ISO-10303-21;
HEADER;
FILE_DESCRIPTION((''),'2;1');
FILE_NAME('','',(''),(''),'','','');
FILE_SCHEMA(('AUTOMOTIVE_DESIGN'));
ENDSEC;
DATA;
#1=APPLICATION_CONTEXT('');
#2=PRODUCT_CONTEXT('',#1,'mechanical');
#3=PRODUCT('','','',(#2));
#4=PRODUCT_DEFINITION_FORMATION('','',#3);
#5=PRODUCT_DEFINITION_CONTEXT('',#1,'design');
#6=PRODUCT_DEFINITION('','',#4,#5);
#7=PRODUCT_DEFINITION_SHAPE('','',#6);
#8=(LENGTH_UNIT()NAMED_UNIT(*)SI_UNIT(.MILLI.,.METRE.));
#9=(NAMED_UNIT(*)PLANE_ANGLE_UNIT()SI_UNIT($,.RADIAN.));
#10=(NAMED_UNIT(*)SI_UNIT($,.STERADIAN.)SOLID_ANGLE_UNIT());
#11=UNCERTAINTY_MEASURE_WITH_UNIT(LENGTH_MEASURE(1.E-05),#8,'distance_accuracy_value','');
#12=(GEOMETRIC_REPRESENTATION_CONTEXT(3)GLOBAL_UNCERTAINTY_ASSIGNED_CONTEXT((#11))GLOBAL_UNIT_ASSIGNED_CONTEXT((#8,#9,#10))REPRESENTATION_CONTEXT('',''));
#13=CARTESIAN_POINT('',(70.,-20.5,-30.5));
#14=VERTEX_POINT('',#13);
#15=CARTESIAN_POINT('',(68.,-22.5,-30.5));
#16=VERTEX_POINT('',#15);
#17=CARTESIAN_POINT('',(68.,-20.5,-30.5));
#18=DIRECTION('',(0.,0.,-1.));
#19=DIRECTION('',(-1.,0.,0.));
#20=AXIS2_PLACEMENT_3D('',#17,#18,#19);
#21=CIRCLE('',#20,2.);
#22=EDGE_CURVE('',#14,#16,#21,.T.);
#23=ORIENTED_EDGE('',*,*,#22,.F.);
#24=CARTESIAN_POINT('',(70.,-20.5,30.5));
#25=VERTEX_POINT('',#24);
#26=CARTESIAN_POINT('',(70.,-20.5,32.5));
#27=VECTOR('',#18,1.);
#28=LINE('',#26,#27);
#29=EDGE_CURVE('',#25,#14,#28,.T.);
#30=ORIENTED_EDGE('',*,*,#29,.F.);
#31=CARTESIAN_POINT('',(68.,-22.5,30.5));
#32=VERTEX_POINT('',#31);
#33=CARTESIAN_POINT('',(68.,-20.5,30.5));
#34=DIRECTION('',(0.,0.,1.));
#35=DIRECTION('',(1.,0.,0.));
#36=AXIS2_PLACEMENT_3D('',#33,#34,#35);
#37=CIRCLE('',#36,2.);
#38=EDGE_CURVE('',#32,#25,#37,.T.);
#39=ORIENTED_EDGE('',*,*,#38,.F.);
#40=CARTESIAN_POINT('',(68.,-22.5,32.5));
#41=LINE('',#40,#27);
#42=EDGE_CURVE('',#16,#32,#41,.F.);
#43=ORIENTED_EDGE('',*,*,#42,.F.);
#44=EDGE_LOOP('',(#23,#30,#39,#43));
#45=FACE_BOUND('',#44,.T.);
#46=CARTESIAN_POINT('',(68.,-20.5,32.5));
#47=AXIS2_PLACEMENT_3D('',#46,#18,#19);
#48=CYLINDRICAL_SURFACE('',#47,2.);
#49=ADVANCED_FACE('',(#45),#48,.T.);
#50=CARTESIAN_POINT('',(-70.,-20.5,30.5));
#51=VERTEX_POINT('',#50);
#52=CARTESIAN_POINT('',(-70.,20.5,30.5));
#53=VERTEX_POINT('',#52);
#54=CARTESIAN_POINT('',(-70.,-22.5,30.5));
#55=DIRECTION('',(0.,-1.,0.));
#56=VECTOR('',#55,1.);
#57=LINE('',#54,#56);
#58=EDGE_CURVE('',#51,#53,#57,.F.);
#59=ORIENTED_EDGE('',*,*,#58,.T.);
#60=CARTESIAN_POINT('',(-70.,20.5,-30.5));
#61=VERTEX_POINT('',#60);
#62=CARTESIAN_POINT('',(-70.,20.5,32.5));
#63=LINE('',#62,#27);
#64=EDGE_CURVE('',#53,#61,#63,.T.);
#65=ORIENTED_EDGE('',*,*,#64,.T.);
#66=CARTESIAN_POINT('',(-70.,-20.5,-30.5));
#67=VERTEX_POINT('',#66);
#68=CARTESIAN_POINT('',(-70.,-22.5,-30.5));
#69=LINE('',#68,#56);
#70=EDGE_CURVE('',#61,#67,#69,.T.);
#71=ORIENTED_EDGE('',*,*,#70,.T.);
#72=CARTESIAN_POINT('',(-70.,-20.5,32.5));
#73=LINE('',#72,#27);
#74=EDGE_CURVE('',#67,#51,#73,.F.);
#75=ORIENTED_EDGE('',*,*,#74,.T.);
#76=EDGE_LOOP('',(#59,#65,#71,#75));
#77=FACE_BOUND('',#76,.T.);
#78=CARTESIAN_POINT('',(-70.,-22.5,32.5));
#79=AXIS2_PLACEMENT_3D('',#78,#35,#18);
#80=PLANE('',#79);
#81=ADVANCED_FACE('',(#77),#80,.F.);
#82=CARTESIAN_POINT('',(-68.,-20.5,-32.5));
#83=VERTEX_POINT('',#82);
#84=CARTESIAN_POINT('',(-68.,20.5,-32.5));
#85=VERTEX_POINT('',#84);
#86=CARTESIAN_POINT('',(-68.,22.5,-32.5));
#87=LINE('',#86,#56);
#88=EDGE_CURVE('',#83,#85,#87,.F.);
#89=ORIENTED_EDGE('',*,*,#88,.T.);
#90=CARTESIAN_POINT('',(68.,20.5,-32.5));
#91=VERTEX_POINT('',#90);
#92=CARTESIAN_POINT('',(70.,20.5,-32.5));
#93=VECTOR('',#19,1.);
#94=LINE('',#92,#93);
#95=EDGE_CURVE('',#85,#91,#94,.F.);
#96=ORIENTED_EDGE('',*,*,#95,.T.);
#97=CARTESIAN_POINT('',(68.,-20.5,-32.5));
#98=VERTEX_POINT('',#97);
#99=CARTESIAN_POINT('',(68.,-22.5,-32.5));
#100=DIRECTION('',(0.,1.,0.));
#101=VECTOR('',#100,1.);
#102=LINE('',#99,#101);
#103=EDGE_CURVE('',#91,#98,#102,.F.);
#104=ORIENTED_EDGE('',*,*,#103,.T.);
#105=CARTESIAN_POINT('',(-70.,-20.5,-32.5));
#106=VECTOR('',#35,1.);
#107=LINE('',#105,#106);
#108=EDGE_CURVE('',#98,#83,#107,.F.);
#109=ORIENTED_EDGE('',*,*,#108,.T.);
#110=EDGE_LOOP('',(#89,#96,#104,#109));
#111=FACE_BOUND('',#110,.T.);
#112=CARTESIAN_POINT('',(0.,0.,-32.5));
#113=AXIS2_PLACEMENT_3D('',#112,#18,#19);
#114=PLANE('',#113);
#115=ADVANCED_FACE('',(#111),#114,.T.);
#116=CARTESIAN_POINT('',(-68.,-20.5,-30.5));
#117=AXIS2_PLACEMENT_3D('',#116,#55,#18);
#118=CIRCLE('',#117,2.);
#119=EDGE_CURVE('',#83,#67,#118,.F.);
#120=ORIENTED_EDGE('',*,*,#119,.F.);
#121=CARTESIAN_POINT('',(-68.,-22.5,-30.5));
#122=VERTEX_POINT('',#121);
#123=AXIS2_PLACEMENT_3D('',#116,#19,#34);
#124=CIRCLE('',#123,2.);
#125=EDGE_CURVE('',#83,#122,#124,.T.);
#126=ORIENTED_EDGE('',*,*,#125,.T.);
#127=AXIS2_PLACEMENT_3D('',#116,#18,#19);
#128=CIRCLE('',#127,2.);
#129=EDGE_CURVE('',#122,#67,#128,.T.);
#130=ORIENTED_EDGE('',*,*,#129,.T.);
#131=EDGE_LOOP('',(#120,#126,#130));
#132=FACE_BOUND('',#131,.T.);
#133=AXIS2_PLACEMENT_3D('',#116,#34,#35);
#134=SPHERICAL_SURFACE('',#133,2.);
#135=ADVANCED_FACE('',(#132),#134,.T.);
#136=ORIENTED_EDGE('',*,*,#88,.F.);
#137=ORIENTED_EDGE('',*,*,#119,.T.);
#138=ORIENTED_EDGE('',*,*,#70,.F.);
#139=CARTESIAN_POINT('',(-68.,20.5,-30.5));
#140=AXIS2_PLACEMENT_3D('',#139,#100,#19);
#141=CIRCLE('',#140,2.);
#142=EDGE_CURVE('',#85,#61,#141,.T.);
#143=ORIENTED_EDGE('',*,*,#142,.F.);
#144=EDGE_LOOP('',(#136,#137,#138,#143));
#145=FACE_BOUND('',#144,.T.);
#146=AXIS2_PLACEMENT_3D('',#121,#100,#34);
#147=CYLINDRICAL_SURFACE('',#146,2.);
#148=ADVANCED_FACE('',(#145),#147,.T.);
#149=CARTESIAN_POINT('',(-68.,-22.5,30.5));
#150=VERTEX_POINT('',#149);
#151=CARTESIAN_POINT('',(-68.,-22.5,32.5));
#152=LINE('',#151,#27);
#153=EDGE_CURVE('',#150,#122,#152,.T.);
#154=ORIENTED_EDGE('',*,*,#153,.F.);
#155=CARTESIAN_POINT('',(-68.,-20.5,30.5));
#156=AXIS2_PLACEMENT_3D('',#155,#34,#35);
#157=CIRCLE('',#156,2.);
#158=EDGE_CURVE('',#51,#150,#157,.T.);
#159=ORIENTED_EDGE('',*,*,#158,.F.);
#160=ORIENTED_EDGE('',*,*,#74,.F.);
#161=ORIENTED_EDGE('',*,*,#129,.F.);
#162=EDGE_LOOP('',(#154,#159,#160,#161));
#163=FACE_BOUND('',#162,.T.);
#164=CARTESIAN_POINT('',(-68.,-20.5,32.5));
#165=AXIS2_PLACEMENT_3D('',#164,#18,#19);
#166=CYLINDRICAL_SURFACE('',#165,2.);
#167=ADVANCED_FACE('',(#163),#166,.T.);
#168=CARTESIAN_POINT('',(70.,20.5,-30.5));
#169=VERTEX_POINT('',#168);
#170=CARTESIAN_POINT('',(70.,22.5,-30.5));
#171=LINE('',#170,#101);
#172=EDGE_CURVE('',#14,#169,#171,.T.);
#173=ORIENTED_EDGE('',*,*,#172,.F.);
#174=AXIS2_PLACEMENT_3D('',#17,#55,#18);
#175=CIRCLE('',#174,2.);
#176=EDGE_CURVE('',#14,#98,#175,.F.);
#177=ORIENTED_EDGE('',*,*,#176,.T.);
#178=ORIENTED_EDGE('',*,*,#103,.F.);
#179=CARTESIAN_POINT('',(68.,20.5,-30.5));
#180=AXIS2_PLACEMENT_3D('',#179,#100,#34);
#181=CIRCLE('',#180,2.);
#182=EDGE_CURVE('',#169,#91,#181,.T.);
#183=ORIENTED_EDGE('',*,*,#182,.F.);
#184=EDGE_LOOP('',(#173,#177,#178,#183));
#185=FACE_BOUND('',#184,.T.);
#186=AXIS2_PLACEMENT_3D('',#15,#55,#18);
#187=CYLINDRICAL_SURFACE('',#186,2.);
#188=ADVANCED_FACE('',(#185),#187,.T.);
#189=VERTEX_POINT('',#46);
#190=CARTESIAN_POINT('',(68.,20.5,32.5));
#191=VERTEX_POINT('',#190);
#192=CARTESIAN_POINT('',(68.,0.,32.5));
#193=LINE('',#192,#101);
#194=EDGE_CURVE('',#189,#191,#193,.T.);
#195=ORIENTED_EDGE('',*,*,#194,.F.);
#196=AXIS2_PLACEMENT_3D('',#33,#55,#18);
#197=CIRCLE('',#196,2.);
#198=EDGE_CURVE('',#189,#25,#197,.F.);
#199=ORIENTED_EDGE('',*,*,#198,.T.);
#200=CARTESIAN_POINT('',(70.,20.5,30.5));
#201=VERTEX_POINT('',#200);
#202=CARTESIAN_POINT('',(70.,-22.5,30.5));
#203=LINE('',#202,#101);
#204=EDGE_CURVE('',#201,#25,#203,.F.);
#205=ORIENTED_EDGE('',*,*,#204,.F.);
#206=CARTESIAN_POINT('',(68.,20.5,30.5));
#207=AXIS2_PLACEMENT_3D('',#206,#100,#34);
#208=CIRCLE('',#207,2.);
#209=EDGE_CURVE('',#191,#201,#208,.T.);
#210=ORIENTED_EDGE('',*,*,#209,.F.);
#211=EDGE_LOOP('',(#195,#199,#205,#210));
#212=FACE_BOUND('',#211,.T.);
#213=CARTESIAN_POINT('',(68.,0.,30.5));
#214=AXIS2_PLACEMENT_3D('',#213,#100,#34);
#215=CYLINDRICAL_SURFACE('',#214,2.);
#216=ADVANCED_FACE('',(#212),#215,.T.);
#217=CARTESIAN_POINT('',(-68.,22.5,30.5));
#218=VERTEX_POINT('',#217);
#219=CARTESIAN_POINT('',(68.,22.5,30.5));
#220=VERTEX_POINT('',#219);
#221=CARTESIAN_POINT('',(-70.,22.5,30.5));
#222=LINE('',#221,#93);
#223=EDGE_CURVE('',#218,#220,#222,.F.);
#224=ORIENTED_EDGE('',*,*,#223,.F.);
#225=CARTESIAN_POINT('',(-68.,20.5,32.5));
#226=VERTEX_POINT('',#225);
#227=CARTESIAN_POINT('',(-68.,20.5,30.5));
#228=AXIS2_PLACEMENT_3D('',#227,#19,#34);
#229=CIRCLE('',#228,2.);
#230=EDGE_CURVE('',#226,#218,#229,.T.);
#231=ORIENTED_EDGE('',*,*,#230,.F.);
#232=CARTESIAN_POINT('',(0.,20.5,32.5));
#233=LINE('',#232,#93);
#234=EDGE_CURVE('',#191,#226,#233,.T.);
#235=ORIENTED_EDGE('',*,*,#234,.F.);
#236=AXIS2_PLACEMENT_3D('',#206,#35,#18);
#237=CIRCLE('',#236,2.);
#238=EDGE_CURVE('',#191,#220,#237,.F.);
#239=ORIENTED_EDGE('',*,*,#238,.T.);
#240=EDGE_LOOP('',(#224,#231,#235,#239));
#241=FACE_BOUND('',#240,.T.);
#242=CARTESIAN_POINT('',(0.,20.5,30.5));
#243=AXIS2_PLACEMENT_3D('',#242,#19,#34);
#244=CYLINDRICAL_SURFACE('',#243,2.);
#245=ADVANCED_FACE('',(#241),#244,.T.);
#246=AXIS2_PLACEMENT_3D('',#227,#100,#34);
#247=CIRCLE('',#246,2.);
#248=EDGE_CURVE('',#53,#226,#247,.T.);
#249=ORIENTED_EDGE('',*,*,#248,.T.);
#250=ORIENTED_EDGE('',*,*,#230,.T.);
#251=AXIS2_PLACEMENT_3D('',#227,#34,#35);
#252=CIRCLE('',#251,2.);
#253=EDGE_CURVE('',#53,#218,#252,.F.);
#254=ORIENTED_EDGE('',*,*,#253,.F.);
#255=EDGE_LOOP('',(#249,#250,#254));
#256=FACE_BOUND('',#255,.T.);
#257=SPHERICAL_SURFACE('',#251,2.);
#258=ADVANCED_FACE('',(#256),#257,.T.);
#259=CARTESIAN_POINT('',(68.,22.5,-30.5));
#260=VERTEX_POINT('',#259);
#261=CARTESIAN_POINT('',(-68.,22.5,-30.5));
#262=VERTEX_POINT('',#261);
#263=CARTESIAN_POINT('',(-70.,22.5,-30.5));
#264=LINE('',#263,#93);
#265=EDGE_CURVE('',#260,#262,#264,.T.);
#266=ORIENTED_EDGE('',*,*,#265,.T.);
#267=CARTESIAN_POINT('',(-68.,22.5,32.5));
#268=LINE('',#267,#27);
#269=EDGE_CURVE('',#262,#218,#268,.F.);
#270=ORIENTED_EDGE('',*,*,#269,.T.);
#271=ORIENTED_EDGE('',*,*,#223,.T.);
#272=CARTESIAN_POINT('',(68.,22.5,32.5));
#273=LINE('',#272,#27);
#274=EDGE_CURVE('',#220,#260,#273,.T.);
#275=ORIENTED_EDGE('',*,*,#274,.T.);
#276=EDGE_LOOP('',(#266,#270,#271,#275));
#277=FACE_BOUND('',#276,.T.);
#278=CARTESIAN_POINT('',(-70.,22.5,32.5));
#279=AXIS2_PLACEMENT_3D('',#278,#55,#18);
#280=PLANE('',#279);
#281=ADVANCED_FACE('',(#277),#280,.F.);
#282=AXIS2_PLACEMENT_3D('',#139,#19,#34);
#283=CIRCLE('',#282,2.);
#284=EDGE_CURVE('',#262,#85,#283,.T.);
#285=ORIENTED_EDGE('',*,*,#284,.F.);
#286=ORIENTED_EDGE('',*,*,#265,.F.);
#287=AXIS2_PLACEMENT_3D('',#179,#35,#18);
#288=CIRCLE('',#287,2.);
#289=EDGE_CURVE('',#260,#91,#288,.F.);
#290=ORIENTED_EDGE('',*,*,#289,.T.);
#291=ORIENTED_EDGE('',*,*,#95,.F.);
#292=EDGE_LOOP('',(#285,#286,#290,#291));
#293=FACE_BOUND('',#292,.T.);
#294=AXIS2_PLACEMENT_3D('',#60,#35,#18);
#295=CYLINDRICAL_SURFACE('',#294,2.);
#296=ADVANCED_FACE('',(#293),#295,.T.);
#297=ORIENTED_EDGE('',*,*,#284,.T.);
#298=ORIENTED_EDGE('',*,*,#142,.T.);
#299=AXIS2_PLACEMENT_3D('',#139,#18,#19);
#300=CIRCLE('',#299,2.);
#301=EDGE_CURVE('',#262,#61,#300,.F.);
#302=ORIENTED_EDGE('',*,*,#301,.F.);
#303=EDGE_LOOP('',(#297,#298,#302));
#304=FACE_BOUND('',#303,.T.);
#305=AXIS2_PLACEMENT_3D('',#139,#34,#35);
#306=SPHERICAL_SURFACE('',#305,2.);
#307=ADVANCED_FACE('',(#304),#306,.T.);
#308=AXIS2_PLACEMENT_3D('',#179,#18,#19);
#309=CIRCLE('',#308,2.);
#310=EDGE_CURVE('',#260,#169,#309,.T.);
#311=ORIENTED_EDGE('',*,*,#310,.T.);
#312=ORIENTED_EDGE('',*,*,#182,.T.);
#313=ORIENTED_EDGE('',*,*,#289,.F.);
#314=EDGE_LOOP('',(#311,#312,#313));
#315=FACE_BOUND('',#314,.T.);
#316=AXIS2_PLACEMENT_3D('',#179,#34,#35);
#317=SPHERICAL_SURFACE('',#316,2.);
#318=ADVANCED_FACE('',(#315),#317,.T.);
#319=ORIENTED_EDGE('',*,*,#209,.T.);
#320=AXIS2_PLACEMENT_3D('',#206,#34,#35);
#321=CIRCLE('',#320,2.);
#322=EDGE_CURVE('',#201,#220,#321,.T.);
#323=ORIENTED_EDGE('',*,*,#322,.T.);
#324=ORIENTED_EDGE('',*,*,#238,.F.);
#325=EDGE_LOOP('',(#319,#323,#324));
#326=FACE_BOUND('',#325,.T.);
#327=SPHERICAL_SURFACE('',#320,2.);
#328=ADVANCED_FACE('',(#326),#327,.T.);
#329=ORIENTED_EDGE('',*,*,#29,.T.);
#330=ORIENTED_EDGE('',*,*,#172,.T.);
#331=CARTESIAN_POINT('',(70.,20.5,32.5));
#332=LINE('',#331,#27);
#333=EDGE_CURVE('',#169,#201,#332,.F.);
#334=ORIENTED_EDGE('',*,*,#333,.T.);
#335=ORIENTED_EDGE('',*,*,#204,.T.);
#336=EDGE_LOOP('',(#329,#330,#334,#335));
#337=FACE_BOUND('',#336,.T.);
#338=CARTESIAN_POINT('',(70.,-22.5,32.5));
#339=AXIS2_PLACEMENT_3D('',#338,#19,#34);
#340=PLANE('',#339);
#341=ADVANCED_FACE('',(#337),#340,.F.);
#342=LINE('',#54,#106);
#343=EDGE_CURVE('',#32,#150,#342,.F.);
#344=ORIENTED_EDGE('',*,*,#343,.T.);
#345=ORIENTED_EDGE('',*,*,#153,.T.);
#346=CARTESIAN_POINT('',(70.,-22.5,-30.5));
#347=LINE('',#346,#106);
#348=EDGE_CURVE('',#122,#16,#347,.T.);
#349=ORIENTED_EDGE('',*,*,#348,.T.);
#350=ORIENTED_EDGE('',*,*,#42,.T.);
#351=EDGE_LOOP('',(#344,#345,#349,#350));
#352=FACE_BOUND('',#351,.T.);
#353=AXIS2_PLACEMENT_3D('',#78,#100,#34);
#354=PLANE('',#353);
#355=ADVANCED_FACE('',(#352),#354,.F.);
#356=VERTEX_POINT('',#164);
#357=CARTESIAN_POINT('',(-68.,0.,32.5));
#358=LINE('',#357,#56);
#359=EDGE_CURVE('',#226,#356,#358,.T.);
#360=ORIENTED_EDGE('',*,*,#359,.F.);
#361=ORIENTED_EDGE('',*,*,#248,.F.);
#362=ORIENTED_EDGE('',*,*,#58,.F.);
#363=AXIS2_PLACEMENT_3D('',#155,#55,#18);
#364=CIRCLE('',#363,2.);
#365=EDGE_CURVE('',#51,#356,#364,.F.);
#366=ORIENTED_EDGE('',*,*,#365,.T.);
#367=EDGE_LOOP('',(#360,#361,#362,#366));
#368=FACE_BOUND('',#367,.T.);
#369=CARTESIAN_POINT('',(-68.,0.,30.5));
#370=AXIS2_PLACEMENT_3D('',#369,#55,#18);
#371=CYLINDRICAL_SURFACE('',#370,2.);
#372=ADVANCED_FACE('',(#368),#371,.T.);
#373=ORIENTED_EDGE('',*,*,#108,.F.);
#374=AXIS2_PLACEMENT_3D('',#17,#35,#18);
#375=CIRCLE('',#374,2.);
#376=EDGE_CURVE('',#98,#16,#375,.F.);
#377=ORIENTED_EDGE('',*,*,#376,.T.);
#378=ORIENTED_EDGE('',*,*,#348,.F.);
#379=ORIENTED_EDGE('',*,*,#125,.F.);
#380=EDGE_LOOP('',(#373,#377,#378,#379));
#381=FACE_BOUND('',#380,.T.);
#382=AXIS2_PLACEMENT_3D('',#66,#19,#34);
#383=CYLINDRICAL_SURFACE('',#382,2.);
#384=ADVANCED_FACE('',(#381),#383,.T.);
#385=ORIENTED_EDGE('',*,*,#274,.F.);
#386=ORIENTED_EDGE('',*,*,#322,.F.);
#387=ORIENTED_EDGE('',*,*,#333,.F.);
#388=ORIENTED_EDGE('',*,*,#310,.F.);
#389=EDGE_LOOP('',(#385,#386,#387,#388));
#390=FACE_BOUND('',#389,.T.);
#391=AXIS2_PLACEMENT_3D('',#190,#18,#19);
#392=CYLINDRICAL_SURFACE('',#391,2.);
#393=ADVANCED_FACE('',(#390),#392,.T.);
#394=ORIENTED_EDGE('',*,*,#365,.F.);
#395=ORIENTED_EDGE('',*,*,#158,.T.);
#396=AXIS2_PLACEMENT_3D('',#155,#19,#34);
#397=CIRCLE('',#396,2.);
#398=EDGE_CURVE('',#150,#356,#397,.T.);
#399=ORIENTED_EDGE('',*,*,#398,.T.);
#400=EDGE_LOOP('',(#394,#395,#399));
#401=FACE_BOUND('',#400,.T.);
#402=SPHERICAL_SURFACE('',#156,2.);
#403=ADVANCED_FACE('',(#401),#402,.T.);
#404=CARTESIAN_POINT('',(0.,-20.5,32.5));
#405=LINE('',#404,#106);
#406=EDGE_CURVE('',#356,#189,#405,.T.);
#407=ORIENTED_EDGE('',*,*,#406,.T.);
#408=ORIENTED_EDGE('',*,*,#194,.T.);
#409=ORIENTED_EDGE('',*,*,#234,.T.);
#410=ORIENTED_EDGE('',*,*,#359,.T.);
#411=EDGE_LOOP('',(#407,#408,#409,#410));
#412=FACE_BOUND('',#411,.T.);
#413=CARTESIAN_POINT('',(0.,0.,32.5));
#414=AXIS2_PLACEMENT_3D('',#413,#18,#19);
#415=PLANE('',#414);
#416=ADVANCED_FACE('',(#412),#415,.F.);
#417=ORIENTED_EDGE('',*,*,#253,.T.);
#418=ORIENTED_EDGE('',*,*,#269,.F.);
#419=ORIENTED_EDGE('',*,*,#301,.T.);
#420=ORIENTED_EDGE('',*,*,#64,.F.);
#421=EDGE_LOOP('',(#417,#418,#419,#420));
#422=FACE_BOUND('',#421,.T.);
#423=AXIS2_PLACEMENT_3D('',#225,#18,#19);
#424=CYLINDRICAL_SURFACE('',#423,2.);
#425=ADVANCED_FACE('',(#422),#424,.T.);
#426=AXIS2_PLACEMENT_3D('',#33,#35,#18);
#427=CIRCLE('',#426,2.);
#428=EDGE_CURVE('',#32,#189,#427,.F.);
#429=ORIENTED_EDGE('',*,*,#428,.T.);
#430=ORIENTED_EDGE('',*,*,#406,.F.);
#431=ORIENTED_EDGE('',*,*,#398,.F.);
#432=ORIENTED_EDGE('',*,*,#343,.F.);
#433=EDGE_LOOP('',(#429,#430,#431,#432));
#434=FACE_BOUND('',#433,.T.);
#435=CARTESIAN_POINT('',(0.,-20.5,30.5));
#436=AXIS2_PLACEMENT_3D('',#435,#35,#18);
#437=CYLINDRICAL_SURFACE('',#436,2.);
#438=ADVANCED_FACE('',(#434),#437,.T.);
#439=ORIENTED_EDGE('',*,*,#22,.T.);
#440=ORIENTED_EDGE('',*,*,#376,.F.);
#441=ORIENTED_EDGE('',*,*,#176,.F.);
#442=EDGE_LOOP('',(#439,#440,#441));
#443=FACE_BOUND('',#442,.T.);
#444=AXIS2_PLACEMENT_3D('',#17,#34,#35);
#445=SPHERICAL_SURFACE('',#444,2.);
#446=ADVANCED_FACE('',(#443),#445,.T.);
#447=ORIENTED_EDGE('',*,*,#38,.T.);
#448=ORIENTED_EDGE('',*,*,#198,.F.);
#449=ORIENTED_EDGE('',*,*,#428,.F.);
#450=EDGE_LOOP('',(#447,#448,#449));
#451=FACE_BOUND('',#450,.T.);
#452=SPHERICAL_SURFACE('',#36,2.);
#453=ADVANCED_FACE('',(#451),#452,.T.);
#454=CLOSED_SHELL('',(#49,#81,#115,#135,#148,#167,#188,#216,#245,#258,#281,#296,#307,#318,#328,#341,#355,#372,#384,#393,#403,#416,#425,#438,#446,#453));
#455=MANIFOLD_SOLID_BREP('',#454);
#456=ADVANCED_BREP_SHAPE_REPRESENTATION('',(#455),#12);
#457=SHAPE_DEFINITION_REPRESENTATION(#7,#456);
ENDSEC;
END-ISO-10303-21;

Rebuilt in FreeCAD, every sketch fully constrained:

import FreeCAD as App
import Part
import Sketcher

V = App.Vector

doc = App.newDocument("Part")
params = doc.addObject("Spreadsheet::Sheet", "Params")
for row, (alias, value) in enumerate([
    ("sketch1_width", "140 mm"),
    ("sketch1_height", "45 mm"),
    ("pad1_length", "65 mm"),
    ("fillet_radius", "2 mm"),
], start=1):
    params.set(f"A{row}", alias)
    params.set(f"B{row}", "=" + value)
    params.setAlias(f"B{row}", alias)

body = doc.addObject("PartDesign::Body", "Body")

sketch1 = body.newObject("Sketcher::SketchObject", "Sketch")
sketch1.AttachmentSupport = (doc.getObject("XY_Plane"), [""])
sketch1.MapMode = "FlatFace"
sketch1.addGeometry(Part.LineSegment(V(-70, 22, 0), V(-70, -22, 0)), False)
sketch1.addGeometry(Part.LineSegment(V(-70, -22, 0), V(70, -22, 0)), False)
sketch1.addGeometry(Part.LineSegment(V(70, -22, 0), V(70, 22, 0)), False)
sketch1.addGeometry(Part.LineSegment(V(70, 22, 0), V(-70, 22, 0)), False)
sketch1.addConstraint(Sketcher.Constraint("Coincident", 0, 2, 1, 1))
sketch1.addConstraint(Sketcher.Constraint("Coincident", 1, 2, 2, 1))
sketch1.addConstraint(Sketcher.Constraint("Coincident", 2, 2, 3, 1))
sketch1.addConstraint(Sketcher.Constraint("Coincident", 3, 2, 0, 1))
sketch1.addConstraint(Sketcher.Constraint("Vertical", 0))
sketch1.addConstraint(Sketcher.Constraint("Horizontal", 1))
sketch1.addConstraint(Sketcher.Constraint("Vertical", 2))
sketch1.addConstraint(Sketcher.Constraint("Horizontal", 3))
sketch1.addConstraint(Sketcher.Constraint("Symmetric", 0, 2, 2, 2, -1, 1))
sketch1.addConstraint(Sketcher.Constraint("DistanceX", 1, 1, 1, 2, 140.0))
sketch1.addConstraint(Sketcher.Constraint("DistanceY", 0, 2, 0, 1, 45.0))
sketch1.setExpression("Constraints[9]", "Params.sketch1_width")
sketch1.setExpression("Constraints[10]", "Params.sketch1_height")
pad1 = body.newObject("PartDesign::Pad", "Pad")
pad1.Profile = sketch1
pad1.setExpression("Length", "Params.pad1_length")
pad1.Midplane = True
doc.recompute()

fillet = body.newObject("PartDesign::Fillet", "Fillet")
fillet.Base = (pad1, ["Edge1"])
fillet.UseAllEdges = True
fillet.setExpression("Radius", "Params.fillet_radius")

doc.recompute()
